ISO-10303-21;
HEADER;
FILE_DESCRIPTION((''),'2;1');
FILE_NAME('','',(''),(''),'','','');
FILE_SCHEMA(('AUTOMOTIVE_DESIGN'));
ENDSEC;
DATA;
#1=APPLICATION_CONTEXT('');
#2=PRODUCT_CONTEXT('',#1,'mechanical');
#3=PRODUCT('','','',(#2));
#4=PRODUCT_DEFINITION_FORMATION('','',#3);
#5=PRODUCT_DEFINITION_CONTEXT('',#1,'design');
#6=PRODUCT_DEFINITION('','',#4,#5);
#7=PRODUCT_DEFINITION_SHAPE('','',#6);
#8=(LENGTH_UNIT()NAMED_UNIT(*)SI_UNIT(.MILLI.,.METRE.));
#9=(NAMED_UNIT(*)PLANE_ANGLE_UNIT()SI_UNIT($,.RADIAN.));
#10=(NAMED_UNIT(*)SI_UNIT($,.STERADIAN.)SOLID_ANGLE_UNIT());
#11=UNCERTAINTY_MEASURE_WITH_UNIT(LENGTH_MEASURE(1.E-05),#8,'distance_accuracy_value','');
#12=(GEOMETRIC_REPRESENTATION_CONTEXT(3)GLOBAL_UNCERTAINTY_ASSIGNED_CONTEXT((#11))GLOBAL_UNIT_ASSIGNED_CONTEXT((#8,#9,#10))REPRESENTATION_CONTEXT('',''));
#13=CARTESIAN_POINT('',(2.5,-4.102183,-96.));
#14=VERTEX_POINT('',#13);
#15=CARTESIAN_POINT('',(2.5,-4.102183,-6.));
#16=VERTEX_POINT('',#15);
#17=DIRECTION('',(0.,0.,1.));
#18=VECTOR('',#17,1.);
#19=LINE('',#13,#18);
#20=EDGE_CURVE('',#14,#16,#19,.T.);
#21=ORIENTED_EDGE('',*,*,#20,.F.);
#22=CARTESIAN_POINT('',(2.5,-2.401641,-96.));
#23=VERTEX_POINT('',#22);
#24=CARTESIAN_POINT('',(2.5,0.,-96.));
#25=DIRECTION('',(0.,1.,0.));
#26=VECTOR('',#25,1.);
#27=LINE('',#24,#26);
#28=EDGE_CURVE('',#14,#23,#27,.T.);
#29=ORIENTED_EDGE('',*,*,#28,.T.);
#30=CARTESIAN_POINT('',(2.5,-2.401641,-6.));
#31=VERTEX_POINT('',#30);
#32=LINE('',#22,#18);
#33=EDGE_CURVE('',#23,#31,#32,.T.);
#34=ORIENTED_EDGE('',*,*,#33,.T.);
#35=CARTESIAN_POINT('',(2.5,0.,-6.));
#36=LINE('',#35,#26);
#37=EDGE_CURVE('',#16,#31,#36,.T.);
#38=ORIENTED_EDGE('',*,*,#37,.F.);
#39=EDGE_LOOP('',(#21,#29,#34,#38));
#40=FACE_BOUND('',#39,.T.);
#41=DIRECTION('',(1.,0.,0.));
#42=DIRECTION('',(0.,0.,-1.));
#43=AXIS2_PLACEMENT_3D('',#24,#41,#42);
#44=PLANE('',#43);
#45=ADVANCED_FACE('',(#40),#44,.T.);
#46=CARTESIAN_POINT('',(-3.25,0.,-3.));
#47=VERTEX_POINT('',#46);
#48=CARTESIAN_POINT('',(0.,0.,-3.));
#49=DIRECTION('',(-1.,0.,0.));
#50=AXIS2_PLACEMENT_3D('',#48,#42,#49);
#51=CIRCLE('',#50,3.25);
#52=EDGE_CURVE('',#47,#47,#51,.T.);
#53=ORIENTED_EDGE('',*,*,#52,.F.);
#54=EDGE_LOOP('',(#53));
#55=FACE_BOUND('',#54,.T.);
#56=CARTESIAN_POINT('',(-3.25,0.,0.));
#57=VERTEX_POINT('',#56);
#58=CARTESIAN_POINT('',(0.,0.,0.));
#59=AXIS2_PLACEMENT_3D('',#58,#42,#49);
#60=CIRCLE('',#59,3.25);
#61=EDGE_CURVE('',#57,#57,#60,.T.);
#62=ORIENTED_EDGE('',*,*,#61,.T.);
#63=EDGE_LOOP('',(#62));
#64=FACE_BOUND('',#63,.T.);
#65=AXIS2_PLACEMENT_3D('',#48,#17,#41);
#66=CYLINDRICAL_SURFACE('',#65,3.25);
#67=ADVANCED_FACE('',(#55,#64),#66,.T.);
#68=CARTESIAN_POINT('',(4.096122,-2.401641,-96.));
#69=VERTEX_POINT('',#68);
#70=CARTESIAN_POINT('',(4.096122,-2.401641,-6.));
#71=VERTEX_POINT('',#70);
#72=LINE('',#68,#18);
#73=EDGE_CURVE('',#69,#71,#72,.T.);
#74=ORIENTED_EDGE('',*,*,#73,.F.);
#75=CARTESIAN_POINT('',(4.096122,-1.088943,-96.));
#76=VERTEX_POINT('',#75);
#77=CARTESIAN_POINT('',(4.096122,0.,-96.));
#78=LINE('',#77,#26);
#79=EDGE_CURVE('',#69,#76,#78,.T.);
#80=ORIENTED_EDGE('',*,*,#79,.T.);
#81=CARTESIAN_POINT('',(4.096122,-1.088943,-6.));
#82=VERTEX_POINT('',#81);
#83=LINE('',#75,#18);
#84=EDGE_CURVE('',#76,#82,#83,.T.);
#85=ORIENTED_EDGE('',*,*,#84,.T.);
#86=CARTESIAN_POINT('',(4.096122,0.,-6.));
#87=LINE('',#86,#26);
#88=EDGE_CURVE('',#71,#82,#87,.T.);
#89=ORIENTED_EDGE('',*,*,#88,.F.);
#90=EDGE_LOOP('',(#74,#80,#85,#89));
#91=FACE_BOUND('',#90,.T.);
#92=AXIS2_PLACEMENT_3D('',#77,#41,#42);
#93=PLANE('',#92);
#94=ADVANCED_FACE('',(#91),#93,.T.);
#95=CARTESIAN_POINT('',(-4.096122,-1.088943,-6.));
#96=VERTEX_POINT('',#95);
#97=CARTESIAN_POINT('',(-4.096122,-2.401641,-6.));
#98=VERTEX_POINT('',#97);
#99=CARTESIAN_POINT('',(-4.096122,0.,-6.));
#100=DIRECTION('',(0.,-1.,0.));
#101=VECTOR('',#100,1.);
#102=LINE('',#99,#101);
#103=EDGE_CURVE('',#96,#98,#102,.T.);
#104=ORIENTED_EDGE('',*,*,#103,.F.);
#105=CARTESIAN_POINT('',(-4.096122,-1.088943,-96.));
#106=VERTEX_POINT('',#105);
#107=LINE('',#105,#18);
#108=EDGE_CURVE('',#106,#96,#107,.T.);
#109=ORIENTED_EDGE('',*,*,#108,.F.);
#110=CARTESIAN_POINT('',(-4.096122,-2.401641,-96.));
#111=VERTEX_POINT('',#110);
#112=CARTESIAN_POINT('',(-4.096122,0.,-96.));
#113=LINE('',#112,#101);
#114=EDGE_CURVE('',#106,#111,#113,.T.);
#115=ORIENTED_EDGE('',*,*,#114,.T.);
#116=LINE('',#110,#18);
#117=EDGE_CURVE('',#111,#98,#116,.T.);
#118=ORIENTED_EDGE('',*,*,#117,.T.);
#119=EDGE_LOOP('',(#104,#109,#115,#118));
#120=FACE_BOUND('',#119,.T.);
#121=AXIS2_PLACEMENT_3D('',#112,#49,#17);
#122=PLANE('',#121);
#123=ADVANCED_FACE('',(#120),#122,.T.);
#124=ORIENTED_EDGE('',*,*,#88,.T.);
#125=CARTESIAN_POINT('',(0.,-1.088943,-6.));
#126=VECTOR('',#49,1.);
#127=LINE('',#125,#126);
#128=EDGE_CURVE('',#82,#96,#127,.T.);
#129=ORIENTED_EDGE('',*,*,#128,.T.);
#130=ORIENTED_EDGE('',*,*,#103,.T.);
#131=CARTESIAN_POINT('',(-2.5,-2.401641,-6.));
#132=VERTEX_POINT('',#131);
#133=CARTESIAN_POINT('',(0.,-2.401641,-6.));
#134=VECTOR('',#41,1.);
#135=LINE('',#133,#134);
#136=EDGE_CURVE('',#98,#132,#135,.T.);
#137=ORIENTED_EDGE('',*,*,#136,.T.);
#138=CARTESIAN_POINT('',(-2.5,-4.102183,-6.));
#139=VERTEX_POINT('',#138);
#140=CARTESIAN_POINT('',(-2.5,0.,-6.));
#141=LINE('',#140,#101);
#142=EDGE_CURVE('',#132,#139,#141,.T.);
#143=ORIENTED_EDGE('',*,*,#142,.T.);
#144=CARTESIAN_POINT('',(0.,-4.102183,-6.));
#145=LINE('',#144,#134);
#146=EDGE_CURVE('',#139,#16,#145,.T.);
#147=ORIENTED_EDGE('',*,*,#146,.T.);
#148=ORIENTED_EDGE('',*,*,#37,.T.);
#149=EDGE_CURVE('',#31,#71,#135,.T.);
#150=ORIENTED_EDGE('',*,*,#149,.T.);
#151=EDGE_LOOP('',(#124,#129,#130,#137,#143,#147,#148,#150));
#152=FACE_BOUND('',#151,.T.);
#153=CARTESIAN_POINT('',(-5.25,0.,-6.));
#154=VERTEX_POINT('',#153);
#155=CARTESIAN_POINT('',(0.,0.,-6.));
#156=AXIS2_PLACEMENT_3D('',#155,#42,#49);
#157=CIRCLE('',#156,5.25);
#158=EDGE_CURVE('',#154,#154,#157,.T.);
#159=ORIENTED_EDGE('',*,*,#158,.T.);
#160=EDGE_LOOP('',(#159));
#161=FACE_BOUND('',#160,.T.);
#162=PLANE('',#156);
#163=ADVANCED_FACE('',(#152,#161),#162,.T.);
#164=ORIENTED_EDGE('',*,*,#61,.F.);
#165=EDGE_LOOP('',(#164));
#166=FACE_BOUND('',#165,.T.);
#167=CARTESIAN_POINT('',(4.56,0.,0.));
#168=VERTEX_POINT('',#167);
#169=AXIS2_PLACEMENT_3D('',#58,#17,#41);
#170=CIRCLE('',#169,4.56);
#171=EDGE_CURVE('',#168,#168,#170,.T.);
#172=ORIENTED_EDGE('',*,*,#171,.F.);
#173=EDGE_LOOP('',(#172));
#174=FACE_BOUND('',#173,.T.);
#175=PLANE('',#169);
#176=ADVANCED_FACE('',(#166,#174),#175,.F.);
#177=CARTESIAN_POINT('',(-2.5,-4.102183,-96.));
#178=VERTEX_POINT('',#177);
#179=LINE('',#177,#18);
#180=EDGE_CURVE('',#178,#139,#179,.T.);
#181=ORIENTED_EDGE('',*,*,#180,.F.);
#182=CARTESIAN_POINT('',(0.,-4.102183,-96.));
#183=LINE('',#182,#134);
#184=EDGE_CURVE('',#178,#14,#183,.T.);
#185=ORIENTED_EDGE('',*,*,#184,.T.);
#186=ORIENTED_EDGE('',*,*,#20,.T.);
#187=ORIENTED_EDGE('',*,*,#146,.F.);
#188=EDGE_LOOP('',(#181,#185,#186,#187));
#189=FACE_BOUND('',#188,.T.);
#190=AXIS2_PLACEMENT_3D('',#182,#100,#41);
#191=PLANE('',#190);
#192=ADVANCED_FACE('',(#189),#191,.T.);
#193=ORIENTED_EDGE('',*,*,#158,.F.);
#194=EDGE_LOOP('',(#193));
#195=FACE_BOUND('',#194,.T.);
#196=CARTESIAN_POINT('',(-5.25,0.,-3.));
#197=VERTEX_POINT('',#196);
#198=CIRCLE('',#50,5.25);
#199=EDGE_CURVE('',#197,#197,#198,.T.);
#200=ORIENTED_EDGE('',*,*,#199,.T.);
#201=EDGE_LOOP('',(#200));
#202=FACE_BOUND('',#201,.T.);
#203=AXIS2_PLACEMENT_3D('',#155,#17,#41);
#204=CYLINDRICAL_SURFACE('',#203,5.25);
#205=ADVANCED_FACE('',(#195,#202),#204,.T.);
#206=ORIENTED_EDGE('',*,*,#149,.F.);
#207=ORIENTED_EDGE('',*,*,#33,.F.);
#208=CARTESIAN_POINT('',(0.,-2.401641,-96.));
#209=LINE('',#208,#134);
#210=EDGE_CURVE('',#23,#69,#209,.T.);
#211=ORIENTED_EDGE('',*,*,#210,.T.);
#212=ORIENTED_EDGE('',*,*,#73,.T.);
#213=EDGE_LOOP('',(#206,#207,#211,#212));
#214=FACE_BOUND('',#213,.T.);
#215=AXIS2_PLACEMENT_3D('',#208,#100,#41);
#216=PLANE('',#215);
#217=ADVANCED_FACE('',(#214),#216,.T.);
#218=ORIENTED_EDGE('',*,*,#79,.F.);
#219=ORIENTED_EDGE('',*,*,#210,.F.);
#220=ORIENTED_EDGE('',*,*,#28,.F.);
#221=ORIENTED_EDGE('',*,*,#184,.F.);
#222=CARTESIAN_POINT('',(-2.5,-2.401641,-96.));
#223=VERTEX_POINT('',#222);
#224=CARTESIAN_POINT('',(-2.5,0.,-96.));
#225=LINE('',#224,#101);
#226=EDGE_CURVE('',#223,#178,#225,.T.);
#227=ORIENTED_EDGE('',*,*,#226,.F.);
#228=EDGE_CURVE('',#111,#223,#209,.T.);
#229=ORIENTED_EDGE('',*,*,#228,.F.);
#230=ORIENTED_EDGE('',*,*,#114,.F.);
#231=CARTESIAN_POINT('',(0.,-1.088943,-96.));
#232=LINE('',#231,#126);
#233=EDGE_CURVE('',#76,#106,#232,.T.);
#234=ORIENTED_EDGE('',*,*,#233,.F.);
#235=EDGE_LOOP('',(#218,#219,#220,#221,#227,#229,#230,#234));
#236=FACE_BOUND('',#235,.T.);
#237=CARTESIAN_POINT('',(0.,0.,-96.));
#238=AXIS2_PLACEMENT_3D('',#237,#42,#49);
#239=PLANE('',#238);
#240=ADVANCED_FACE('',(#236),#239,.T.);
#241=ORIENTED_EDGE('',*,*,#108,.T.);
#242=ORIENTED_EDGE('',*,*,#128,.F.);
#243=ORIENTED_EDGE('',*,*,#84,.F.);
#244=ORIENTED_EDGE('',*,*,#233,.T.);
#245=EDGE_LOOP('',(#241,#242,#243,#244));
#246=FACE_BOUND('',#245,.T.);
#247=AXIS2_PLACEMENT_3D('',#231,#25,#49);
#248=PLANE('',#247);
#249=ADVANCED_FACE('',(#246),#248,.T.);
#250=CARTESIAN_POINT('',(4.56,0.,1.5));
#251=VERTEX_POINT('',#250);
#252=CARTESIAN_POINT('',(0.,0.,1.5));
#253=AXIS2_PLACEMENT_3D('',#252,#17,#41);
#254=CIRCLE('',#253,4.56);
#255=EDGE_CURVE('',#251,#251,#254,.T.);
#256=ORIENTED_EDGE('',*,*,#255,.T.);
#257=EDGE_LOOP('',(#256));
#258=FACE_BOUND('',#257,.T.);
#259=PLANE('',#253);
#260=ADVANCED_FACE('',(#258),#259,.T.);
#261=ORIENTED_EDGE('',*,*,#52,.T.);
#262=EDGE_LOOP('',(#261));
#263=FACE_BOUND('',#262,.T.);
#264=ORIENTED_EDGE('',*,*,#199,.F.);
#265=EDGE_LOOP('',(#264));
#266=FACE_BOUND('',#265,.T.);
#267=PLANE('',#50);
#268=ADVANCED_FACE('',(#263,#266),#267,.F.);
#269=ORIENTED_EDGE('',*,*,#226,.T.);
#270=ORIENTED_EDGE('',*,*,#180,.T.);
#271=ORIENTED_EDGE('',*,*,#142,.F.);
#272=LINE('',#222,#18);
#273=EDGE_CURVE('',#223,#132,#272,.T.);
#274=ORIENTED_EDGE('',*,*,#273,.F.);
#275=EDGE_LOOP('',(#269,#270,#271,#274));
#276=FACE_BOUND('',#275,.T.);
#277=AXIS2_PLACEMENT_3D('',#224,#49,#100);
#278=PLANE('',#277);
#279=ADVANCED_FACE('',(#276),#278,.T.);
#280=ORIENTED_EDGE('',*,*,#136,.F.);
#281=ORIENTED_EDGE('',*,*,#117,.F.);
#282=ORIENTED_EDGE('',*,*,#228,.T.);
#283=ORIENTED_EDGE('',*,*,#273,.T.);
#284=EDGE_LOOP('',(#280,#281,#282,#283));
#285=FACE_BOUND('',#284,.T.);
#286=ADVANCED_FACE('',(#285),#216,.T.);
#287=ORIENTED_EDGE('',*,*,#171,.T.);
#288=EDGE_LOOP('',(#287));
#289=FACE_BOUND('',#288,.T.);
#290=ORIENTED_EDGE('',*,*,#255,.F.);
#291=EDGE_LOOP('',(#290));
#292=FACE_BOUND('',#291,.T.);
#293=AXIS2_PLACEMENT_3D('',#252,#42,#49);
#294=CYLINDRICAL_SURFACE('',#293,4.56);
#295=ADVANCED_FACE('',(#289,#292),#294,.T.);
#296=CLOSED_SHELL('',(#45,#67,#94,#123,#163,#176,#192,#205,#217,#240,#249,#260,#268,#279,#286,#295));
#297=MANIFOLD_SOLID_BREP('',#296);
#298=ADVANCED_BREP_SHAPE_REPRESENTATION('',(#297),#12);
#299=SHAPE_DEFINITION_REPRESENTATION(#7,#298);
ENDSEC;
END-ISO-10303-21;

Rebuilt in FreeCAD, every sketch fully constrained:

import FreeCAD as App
import Part
import Sketcher
from FreeCAD import Vector


def add_polygon(sketch, points):
    """Adds a closed chain of lines whose ends are joined by coincident constraints."""
    first, n = sketch.GeometryCount, len(points)
    for a, b in zip(points, points[1:] + points[:1]):
        sketch.addGeometry(Part.LineSegment(App.Vector(*a, 0), App.Vector(*b, 0)), False)
    for i in range(n):
        sketch.addConstraint(Sketcher.Constraint("Coincident", first + i, 2, first + (i + 1) % n, 1))

doc = App.newDocument("Part")
body = doc.addObject("PartDesign::Body", "Body")

sketch1 = doc.addObject("Sketcher::SketchObject", "Sketch")
body.addObject(sketch1)
sketch1.AttachmentSupport = (doc.XY_Plane, [""])
sketch1.MapMode = "FlatFace"
sketch1.addGeometry(Part.Circle(Vector(0, 0, 0), Vector(0, 0, 1), 4.6), False)
sketch1.addConstraint(Sketcher.Constraint("Coincident", 0, 3, -1, 1))
sketch1.addConstraint(Sketcher.Constraint("Diameter", 0, 9.12))
pad1 = doc.addObject("PartDesign::Pad", "Pad")
body.addObject(pad1)
pad1.Profile = sketch1
pad1.Length = 1.5

sketch2 = doc.addObject("Sketcher::SketchObject", "Sketch001")
body.addObject(sketch2)
sketch2.AttachmentSupport = (doc.XY_Plane, [""])
sketch2.MapMode = "FlatFace"
sketch2.addGeometry(Part.Circle(Vector(0, 0, 0), Vector(0, 0, 1), 3.2), False)
sketch2.addConstraint(Sketcher.Constraint("Coincident", 0, 3, -1, 1))
sketch2.addConstraint(Sketcher.Constraint("Diameter", 0, 6.5))
pad2 = doc.addObject("PartDesign::Pad", "Pad001")
body.addObject(pad2)
pad2.Profile = sketch2
pad2.Length = 3
pad2.Reversed = True

sketch3 = doc.addObject("Sketcher::SketchObject", "Sketch002")
body.addObject(sketch3)
sketch3.AttachmentSupport = (doc.XY_Plane, [""])
sketch3.MapMode = "FlatFace"
sketch3.AttachmentOffset = App.Placement(Vector(0, 0, -3), App.Rotation())
sketch3.addGeometry(Part.Circle(Vector(0, 0, 0), Vector(0, 0, 1), 5), False)
sketch3.addConstraint(Sketcher.Constraint("Coincident", 0, 3, -1, 1))
sketch3.addConstraint(Sketcher.Constraint("Diameter", 0, 10.5))
pad3 = doc.addObject("PartDesign::Pad", "Pad002")
body.addObject(pad3)
pad3.Profile = sketch3
pad3.Length = 3
pad3.Reversed = True

sketch4 = doc.addObject("Sketcher::SketchObject", "Sketch003")
body.addObject(sketch4)
sketch4.AttachmentSupport = (doc.XY_Plane, [""])
sketch4.MapMode = "FlatFace"
sketch4.AttachmentOffset = App.Placement(Vector(0, 0, -6), App.Rotation())
add_polygon(sketch4, [(4.1, -1.1), (4.1, -2.4), (2.5, -2.4), (2.5, -4.1), (-2.5, -4.1), (-2.5, -2.4), (-4.1, -2.4), (-4.1, -1.1)])
sketch4.addConstraint(Sketcher.Constraint("Vertical", 0))
sketch4.addConstraint(Sketcher.Constraint("Horizontal", 1))
sketch4.addConstraint(Sketcher.Constraint("Vertical", 2))
sketch4.addConstraint(Sketcher.Constraint("Horizontal", 3))
sketch4.addConstraint(Sketcher.Constraint("Vertical", 4))
sketch4.addConstraint(Sketcher.Constraint("Horizontal", 5))
sketch4.addConstraint(Sketcher.Constraint("Vertical", 6))
sketch4.addConstraint(Sketcher.Constraint("Horizontal", 7))
sketch4.addConstraint(Sketcher.Constraint("Symmetric", 1, 2, 4, 2, -2))
sketch4.addConstraint(Sketcher.Constraint("Equal", 1, 5))
sketch4.addConstraint(Sketcher.Constraint("DistanceX", 3, 2, 3, 1, 5.0))
sketch4.addConstraint(Sketcher.Constraint("DistanceY", 0, 2, 0, 1, 1.312698))
sketch4.addConstraint(Sketcher.Constraint("DistanceX", 1, 2, 1, 1, 1.596122))
sketch4.addConstraint(Sketcher.Constraint("DistanceY", 2, 2, 2, 1, 1.700541))
sketch4.addConstraint(Sketcher.Constraint("DistanceY", 0, 2, -1, 1, 2.401641))
pad4 = doc.addObject("PartDesign::Pad", "Pad003")
body.addObject(pad4)
pad4.Profile = sketch4
pad4.Length = 90
pad4.Reversed = True

doc.recompute()
